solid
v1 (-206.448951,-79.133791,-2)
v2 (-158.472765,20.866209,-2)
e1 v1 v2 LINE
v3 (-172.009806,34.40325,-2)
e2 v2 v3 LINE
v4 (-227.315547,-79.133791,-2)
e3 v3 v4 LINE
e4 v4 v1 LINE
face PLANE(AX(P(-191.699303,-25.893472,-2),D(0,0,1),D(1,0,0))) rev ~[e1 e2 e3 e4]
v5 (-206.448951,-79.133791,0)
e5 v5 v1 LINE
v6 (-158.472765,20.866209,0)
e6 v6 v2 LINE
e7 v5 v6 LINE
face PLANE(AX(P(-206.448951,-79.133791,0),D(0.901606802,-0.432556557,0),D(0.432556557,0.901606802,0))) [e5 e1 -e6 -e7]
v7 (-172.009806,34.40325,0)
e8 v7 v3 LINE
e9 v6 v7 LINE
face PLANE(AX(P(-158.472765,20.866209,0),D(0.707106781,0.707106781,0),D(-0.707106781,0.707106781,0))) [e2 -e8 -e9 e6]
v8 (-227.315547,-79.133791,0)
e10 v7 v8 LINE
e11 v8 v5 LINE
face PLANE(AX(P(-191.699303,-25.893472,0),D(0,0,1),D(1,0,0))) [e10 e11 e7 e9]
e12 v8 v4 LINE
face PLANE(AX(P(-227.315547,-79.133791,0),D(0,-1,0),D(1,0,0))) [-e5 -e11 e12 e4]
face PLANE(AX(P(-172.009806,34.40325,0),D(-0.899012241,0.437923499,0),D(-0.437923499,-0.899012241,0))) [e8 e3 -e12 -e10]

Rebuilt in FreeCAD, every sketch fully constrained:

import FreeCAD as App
import Part
import Sketcher
Q = App.Units.Quantity


def add_polygon(sketch, points):
    """Adds a closed chain of lines whose ends are joined by coincident constraints."""
    first, n = sketch.GeometryCount, len(points)
    for a, b in zip(points, points[1:] + points[:1]):
        sketch.addGeometry(Part.LineSegment(App.Vector(*a, 0), App.Vector(*b, 0)), False)
    for i in range(n):
        sketch.addConstraint(Sketcher.Constraint("Coincident", first + i, 2, first + (i + 1) % n, 1))

doc = App.newDocument("Part")
params = doc.addObject("Spreadsheet::Sheet", "Params")
for row, (alias, value) in enumerate([
    ("pad1_length", "2 mm"),
], start=1):
    params.set(f"A{row}", alias)
    params.set(f"B{row}", "=" + value)
    params.setAlias(f"B{row}", alias)

body = doc.addObject("PartDesign::Body", "Body")

sketch1 = body.newObject("Sketcher::SketchObject", "Sketch")
sketch1.AttachmentSupport = (doc.getObject("XY_Plane"), [""])
sketch1.MapMode = "FlatFace"
add_polygon(sketch1, [(-158.472765, 20.866209), (-172.009806, 34.40325), (-227.315547, -79.133791), (-206.448951, -79.133791)])
sketch1.addConstraint(Sketcher.Constraint("Horizontal", 2))
sketch1.addConstraint(Sketcher.Constraint("Angle", 0, Q("135 deg")))
sketch1.addConstraint(Sketcher.Constraint("DistanceY", 2, 2, 3, 2, Q("100 mm")))
sketch1.addConstraint(Sketcher.Constraint("DistanceX", 2, 1, 2, 2, Q("20.866595 mm")))
sketch1.addConstraint(Sketcher.Constraint("DistanceY", -1, 1, 0, 2, Q("34.40325 mm")))
sketch1.addConstraint(Sketcher.Constraint("DistanceY", 1, 2, -1, 1, Q("79.133791 mm")))
sketch1.addConstraint(Sketcher.Constraint("DistanceX", 2, 2, -1, 1, Q("206.448951 mm")))
sketch1.addConstraint(Sketcher.Constraint("DistanceX", 1, 2, 0, 2, Q("55.305741 mm")))
pad1 = body.newObject("PartDesign::Pad", "Pad")
pad1.Profile = sketch1
pad1.setExpression("Length", "Params.pad1_length")
pad1.Reversed = True

doc.recompute()
